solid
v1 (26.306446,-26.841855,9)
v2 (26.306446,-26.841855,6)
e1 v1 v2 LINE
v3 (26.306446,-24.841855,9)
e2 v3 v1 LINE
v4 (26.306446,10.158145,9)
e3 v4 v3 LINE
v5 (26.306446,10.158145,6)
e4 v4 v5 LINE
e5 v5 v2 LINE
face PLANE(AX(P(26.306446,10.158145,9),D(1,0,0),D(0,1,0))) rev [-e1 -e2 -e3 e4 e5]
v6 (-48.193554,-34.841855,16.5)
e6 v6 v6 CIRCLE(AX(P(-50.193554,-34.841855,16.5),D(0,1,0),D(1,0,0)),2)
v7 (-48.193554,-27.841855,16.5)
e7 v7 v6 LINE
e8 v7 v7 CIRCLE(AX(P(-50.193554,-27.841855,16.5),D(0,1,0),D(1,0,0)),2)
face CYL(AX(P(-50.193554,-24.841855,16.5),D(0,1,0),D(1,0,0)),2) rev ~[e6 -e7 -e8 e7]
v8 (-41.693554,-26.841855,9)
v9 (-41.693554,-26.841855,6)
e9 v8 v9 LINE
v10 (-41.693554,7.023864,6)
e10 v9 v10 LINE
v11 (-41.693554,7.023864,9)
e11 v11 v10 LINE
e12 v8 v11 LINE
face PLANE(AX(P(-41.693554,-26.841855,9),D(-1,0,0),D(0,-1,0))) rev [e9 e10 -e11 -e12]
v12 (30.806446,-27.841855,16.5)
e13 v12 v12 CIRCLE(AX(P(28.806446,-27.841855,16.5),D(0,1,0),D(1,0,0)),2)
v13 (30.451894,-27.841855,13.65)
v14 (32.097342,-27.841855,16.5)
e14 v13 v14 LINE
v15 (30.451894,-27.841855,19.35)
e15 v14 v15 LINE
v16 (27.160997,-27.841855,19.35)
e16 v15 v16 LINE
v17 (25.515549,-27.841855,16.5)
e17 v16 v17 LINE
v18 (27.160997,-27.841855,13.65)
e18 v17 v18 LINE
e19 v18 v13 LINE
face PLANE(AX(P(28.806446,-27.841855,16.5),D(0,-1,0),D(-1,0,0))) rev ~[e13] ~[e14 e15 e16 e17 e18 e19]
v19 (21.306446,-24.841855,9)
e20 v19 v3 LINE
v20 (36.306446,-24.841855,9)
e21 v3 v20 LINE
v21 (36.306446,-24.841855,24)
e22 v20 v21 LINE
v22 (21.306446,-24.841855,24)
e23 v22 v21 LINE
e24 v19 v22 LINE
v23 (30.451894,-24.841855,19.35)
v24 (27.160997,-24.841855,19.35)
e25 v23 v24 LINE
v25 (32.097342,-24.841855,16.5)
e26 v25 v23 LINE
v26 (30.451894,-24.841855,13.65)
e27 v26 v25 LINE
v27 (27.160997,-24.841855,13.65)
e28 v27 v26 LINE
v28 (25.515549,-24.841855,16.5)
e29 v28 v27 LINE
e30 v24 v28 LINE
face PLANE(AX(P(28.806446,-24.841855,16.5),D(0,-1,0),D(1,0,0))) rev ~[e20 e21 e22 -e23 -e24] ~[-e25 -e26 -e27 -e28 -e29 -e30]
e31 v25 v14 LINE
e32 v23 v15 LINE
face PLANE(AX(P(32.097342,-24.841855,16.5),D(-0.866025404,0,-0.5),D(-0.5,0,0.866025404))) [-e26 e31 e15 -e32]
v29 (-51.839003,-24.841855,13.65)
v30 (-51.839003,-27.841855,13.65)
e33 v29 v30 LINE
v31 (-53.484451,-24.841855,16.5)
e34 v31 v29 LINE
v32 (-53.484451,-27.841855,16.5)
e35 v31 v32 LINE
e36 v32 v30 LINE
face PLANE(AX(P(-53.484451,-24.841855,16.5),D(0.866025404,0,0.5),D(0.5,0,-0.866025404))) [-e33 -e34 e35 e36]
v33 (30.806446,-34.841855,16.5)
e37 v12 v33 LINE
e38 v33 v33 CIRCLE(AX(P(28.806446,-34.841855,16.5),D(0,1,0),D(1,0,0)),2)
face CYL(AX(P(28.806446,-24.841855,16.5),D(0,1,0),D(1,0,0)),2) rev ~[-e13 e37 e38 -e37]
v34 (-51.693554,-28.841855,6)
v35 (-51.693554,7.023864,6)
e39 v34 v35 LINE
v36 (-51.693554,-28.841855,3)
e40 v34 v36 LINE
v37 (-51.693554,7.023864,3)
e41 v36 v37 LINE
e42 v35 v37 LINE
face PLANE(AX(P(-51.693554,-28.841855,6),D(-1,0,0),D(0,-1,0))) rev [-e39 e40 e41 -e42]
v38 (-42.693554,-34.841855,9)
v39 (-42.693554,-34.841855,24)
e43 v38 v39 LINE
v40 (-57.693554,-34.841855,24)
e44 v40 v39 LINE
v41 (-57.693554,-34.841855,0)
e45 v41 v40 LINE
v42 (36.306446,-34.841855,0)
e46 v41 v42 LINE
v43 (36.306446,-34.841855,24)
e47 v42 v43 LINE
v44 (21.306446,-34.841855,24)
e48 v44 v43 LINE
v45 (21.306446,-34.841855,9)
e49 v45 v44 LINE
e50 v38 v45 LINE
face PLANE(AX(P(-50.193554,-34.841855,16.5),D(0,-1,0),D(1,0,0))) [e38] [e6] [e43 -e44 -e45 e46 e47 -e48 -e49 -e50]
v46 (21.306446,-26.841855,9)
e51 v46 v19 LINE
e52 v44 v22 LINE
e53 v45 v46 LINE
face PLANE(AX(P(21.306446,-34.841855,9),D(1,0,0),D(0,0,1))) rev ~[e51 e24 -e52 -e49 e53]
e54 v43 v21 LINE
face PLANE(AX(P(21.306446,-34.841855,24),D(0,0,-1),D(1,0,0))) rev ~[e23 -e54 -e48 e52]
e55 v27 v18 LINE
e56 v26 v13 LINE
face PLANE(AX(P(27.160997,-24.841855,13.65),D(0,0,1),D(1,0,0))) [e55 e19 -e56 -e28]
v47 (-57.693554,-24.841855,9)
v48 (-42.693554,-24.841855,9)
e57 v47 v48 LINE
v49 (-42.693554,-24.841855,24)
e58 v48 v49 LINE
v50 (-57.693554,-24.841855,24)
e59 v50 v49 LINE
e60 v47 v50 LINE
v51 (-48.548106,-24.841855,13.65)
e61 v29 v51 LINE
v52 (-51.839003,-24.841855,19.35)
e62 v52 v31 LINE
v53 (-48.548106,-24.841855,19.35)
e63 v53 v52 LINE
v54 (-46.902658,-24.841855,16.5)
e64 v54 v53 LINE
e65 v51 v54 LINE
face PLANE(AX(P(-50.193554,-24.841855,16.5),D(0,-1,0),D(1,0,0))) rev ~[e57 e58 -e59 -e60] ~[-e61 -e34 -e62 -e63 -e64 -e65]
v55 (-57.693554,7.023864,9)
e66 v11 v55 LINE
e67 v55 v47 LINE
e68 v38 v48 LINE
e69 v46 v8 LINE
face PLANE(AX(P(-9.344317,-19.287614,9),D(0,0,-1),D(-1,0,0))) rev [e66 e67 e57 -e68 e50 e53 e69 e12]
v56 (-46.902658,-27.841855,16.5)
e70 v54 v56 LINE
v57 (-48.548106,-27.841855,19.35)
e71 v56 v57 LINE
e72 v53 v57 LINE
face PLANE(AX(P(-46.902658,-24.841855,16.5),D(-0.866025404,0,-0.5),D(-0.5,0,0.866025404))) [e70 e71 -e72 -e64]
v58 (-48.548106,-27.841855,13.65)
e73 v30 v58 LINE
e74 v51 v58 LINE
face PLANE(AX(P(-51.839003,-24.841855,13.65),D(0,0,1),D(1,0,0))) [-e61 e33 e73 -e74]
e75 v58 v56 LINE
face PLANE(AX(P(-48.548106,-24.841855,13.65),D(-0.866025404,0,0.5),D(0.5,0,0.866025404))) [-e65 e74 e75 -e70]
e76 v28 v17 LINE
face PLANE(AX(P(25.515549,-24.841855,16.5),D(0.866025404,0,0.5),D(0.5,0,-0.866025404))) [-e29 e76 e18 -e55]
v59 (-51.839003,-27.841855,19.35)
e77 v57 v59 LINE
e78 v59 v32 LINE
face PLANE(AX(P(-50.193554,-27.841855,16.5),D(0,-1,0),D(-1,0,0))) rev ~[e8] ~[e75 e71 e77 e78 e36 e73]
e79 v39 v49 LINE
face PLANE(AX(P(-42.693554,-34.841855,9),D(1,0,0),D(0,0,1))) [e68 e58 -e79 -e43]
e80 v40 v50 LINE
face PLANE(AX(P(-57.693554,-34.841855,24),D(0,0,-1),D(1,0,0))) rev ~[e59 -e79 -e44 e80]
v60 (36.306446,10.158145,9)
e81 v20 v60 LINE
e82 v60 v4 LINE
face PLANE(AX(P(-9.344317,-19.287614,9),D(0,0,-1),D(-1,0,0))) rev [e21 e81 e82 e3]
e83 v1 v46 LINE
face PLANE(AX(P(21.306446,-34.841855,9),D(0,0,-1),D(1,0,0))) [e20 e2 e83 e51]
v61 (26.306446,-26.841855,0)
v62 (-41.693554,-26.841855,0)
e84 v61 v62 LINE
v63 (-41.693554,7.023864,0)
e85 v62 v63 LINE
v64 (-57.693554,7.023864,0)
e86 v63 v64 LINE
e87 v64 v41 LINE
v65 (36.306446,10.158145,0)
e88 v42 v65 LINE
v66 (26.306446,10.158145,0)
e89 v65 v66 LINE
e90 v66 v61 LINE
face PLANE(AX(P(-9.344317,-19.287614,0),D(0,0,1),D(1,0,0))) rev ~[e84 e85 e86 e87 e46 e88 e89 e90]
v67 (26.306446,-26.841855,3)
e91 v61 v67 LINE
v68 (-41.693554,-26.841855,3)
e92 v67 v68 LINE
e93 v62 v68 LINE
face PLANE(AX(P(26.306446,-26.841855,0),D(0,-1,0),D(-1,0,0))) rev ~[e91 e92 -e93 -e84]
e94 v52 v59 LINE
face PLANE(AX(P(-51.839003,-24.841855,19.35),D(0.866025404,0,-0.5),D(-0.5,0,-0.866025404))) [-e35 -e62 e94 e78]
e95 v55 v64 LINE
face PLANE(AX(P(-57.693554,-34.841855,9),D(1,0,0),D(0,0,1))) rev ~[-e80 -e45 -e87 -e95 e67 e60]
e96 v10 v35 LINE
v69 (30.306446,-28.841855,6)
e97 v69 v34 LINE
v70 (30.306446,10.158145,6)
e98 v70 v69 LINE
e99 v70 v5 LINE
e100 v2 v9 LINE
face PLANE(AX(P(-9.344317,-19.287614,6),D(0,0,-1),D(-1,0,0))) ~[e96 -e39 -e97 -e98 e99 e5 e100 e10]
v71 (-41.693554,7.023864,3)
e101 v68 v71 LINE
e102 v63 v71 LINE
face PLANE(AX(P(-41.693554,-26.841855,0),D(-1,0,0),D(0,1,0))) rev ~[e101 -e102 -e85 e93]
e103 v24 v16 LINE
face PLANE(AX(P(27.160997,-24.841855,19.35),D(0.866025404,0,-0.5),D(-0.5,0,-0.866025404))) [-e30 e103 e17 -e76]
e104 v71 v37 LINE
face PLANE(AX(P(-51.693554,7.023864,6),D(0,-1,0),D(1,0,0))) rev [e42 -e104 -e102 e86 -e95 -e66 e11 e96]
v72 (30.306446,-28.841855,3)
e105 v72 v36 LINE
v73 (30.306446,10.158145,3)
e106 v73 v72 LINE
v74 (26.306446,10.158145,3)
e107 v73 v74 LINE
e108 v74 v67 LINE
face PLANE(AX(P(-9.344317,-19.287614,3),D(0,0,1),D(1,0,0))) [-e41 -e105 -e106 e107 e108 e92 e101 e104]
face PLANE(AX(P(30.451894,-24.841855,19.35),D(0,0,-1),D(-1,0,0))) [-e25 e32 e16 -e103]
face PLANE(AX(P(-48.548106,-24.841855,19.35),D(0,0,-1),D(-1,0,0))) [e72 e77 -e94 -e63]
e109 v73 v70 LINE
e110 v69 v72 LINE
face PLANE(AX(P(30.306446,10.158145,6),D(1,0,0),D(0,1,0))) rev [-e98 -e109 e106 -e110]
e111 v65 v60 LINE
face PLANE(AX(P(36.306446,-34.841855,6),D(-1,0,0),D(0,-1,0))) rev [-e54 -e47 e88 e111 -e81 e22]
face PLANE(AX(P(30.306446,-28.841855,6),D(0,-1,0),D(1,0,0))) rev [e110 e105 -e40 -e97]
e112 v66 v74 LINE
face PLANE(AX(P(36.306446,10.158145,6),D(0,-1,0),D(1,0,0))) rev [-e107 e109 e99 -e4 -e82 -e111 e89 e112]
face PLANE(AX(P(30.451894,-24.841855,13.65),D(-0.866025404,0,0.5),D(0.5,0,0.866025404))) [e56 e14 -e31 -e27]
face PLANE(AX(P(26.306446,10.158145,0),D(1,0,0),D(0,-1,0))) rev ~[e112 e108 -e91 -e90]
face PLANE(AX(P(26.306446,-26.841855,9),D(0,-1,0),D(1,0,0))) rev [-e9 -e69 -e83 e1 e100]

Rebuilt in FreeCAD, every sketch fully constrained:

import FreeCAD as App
import Part
import Sketcher
from FreeCAD import Vector
Q = App.Units.Quantity


def add_polygon(sketch, points):
    """Adds a closed chain of lines whose ends are joined by coincident constraints."""
    first, n = sketch.GeometryCount, len(points)
    for a, b in zip(points, points[1:] + points[:1]):
        sketch.addGeometry(Part.LineSegment(App.Vector(*a, 0), App.Vector(*b, 0)), False)
    for i in range(n):
        sketch.addConstraint(Sketcher.Constraint("Coincident", first + i, 2, first + (i + 1) % n, 1))

doc = App.newDocument("Part")
body = doc.addObject("PartDesign::Body", "Body")

# Sketch on XY plane
sketch1 = body.newObject("Sketcher::SketchObject", "Sketch")
sketch1.AttachmentSupport = (doc.getObject("XY_Plane"), [""])
sketch1.MapMode = "FlatFace"
add_polygon(sketch1, [(26.306446, -26.841855), (-41.693554, -26.841855), (-41.693554, 7.023864), (-57.693554, 7.023864), (-57.693554, -34.841855), (36.306446, -34.841855), (36.306446, 10.158145), (26.306446, 10.158145)])  # lines 0-7
sketch1.addConstraint([
    Sketcher.Constraint("Horizontal", 0),
    Sketcher.Constraint("Vertical", 1),
    Sketcher.Constraint("Horizontal", 2),
    Sketcher.Constraint("Vertical", 3),
    Sketcher.Constraint("Horizontal", 4),
    Sketcher.Constraint("Vertical", 5),
    Sketcher.Constraint("Horizontal", 6),
    Sketcher.Constraint("Vertical", 7),
    Sketcher.Constraint("DistanceX", 0, 2, 0, 1, Q("68 mm")),
    Sketcher.Constraint("DistanceX", 2, 2, 2, 1, Q("16 mm")),
    Sketcher.Constraint("DistanceX", 4, 1, 4, 2, Q("94 mm")),
    Sketcher.Constraint("DistanceY", 5, 1, 5, 2, Q("45 mm")),
    Sketcher.Constraint("DistanceY", 7, 2, 7, 1, Q("37 mm")),
    Sketcher.Constraint("DistanceY", 1, 1, 1, 2, Q("33.865719 mm")),
    Sketcher.Constraint("DistanceX", 0, 2, -1, 1, Q("41.693554 mm")),
    Sketcher.Constraint("DistanceY", 0, 2, -1, 1, Q("26.841855 mm")),
])
pad1 = body.newObject("PartDesign::Pad", "Pad")
pad1.Profile = sketch1
pad1.Length = 3

# Sketch on XY plane
sketch2 = body.newObject("Sketcher::SketchObject", "Sketch001")
sketch2.AttachmentSupport = (doc.getObject("XY_Plane"), [""])
sketch2.MapMode = "FlatFace"
sketch2.AttachmentOffset = App.Placement(Vector(0, 0, 3), App.Rotation())
add_polygon(sketch2, [(-57.693554, 7.023864), (-57.693554, -34.841855), (36.306446, -34.841855), (36.306446, 10.158145), (30.306446, 10.158145), (30.306446, -28.841855), (-51.693554, -28.841855), (-51.693554, 7.023864)])  # lines 0-7
sketch2.addConstraint([
    Sketcher.Constraint("Vertical", 0),
    Sketcher.Constraint("Horizontal", 1),
    Sketcher.Constraint("Vertical", 2),
    Sketcher.Constraint("Horizontal", 3),
    Sketcher.Constraint("Vertical", 4),
    Sketcher.Constraint("Horizontal", 5),
    Sketcher.Constraint("Vertical", 6),
    Sketcher.Constraint("Horizontal", 7),
    Sketcher.Constraint("Equal", 3, 7),
    Sketcher.Constraint("DistanceX", 1, 1, 1, 2, Q("94 mm")),
    Sketcher.Constraint("DistanceX", 3, 2, 3, 1, Q("6 mm")),
    Sketcher.Constraint("DistanceY", 2, 1, 2, 2, Q("45 mm")),
    Sketcher.Constraint("DistanceY", 4, 2, 4, 1, Q("39 mm")),
    Sketcher.Constraint("DistanceY", 0, 2, 0, 1, Q("41.865719 mm")),
    Sketcher.Constraint("DistanceX", 0, 2, -1, 1, Q("57.693554 mm")),
    Sketcher.Constraint("DistanceY", 0, 2, -1, 1, Q("34.841855 mm")),
])
pad2 = body.newObject("PartDesign::Pad", "Pad001")
pad2.Profile = sketch2
pad2.Length = 1.5
body2 = doc.addObject("PartDesign::Body", "Body001")
doc.recompute()

body2.BaseFeature = body
doc.recompute()

mirroring = doc.addObject("Part::Mirroring", "Mirroring")
mirroring.Source = body
mirroring.Base = Vector(0, 0, 4.5)
mirroring.Normal = Vector(0, 0, 1)
body3 = doc.addObject("PartDesign::Body", "Body002")
body3.BaseFeature = mirroring
boolean = body2.newObject("PartDesign::Boolean", "Boolean")
boolean.Type = "Fuse"
boolean.addObjects([body3])
doc.recompute()

# Sketch on XZ plane
sketch3 = body2.newObject("Sketcher::SketchObject", "Sketch002")
sketch3.AttachmentSupport = (doc.getObject("XZ_Plane001"), [""])
sketch3.MapMode = "FlatFace"
sketch3.AttachmentOffset = App.Placement(Vector(0, 0, 34.841855), App.Rotation())
add_polygon(sketch3, [(-57.693554, 24), (-57.693554, 9), (-42.693554, 9), (-42.693554, 24)])  # lines 0-3
add_polygon(sketch3, [(21.306446, 24), (21.306446, 9), (36.306446, 9), (36.306446, 24)])  # lines 4-7
sketch3.addConstraint([
    Sketcher.Constraint("Vertical", 0),
    Sketcher.Constraint("Horizontal", 1),
    Sketcher.Constraint("Vertical", 2),
    Sketcher.Constraint("Horizontal", 3),
    Sketcher.Constraint("Vertical", 4),
    Sketcher.Constraint("Horizontal", 5),
    Sketcher.Constraint("Vertical", 6),
    Sketcher.Constraint("Horizontal", 7),
    Sketcher.Constraint("Horizontal", 1, 2, 4, 2),
    Sketcher.Constraint("Horizontal", 3, 2, 6, 2),
    Sketcher.Constraint("Equal", 3, 5),
    Sketcher.Constraint("Equal", 7, 0),
    Sketcher.Constraint("DistanceX", 1, 1, 1, 2, Q("15 mm")),
    Sketcher.Constraint("DistanceY", -1, 1, 0, 2, Q("9 mm")),
    Sketcher.Constraint("DistanceX", 1, 2, 4, 2, Q("64 mm")),
    Sketcher.Constraint("DistanceX", 0, 2, -1, 1, Q("57.693554 mm")),
])
pad3 = body2.newObject("PartDesign::Pad", "Pad002")
pad3.Profile = sketch3
pad3.Length = 10
pad3.Reversed = True

# Sketch on XZ plane
sketch4 = body2.newObject("Sketcher::SketchObject", "Sketch003")
sketch4.AttachmentSupport = (doc.getObject("XZ_Plane001"), [""])
sketch4.MapMode = "FlatFace"
sketch4.AttachmentOffset = App.Placement(Vector(0, 0, 24.841855), App.Rotation())
sketch4.addGeometry([
    Part.Circle(Vector(-50.193554, 16.5, 0), Vector(0, 0, 1), 2),
    Part.Circle(Vector(28.806446, 16.5, 0), Vector(0, 0, 1), 2),
], False)
sketch4.addConstraint([
    Sketcher.Constraint("Equal", 0, 1),
    Sketcher.Constraint("Horizontal", 0, 3, 1, 3),
    Sketcher.Constraint("Diameter", 0, Q("4 mm")),
    Sketcher.Constraint("DistanceX", 0, 3, 1, 3, Q("79 mm")),
    Sketcher.Constraint("DistanceY", -1, 1, 0, 3, Q("16.5 mm")),
    Sketcher.Constraint("DistanceX", 0, 3, -1, 1, Q("50.193554 mm")),
])
pocket1 = body2.newObject("PartDesign::Pocket", "Pocket")
pocket1.Profile = sketch4
pocket1.Length = 10
pocket1.Reversed = True

# Sketch on XZ plane
sketch5 = body2.newObject("Sketcher::SketchObject", "Sketch004")
sketch5.AttachmentSupport = (doc.getObject("XZ_Plane001"), [""])
sketch5.MapMode = "FlatFace"
sketch5.AttachmentOffset = App.Placement(Vector(0, 0, 24.841855), App.Rotation())
add_polygon(sketch5, [(-48.548106, 13.65), (-51.839003, 13.65), (-53.484451, 16.5), (-51.839003, 19.35), (-48.548106, 19.35), (-46.902658, 16.5)])  # lines 0-5
add_polygon(sketch5, [(30.451894, 13.65), (27.160997, 13.65), (25.515549, 16.5), (27.160997, 19.35), (30.451894, 19.35), (32.097342, 16.5)])  # lines 6-11
sketch5.addConstraint([
    Sketcher.Constraint("Horizontal", 0),
    Sketcher.Constraint("Horizontal", 3),
    Sketcher.Constraint("Horizontal", 6),
    Sketcher.Constraint("Horizontal", 9),
    Sketcher.Constraint("Parallel", 1, 4),
    Sketcher.Constraint("Parallel", 2, 5),
    Sketcher.Constraint("Parallel", 4, 7),
    Sketcher.Constraint("Parallel", 5, 8),
    Sketcher.Constraint("Parallel", 7, 10),
    Sketcher.Constraint("Parallel", 8, 11),
    Sketcher.Constraint("Horizontal", 1, 2, 4, 2),
    Sketcher.Constraint("Horizontal", 5, 2, 6, 2),
    Sketcher.Constraint("Horizontal", 4, 2, 7, 2),
    Sketcher.Constraint("Horizontal", 3, 2, 8, 2),
    Sketcher.Constraint("Horizontal", 7, 2, 10, 2),
    Sketcher.Constraint("Vertical", 0, 2, 2, 2),
    Sketcher.Constraint("Vertical", 3, 2, 5, 2),
    Sketcher.Constraint("Equal", 3, 6),
    Sketcher.Constraint("Angle", 1, Q("120 deg")),
    Sketcher.Constraint("DistanceX", 0, 2, 6, 2, Q("79 mm")),
    Sketcher.Constraint("DistanceY", -1, 1, 1, 2, Q("16.5 mm")),
    Sketcher.Constraint("DistanceY", 0, 2, 2, 2, Q("5.7 mm")),
    Sketcher.Constraint("DistanceX", 0, 2, 0, 1, Q("3.290897 mm")),
    Sketcher.Constraint("DistanceX", 1, 2, -1, 1, Q("53.484451 mm")),
])
pocket2 = body2.newObject("PartDesign::Pocket", "Pocket001")
pocket2.Profile = sketch5
pocket2.Length = 3
pocket2.Reversed = True
mirroring.Visibility = False

doc.recompute()
